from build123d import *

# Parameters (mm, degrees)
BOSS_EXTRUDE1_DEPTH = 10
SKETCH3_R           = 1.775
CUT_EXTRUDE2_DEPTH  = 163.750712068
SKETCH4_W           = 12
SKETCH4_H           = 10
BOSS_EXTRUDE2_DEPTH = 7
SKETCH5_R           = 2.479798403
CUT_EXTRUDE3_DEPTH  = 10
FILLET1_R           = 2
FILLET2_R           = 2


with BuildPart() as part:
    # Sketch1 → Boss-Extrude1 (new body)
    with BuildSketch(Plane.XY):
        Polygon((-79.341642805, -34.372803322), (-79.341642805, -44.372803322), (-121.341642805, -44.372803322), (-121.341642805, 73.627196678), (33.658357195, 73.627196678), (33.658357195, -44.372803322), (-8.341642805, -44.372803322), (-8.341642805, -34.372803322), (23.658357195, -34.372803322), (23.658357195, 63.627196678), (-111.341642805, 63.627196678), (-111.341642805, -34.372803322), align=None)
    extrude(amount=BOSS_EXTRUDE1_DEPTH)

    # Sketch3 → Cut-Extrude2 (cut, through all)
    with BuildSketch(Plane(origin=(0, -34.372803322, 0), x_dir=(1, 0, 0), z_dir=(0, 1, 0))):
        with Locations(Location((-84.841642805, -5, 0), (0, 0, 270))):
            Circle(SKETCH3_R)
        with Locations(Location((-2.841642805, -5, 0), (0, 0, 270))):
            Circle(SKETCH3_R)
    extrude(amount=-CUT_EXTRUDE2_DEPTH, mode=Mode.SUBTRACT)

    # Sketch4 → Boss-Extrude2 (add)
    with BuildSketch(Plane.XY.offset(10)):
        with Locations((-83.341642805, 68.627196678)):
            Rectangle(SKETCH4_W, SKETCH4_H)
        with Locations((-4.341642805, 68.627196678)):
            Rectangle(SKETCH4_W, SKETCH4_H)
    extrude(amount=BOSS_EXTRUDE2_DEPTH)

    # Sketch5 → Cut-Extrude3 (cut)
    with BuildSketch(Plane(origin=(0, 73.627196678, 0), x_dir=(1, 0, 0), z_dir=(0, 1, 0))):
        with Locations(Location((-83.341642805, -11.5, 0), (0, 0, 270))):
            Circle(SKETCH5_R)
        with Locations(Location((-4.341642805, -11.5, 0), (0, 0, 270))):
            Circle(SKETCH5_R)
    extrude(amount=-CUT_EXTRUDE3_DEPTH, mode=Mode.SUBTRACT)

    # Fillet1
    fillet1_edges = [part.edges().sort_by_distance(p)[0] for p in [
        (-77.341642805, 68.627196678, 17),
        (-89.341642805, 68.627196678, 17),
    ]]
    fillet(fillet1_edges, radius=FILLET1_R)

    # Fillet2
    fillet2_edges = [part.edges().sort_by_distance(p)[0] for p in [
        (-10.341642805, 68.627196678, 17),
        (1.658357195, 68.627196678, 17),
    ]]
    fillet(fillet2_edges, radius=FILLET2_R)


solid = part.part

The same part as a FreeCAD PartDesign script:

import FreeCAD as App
import Part
import Sketcher

V = App.Vector


def edges_at(feature, points):
    """Names of the edges that pass closest to the given points."""
    edges = feature.Shape.Edges
    near = lambda p: min(range(len(edges)), key=lambda i: edges[i].distToShape(Part.Vertex(*p))[0])
    return sorted({f"Edge{near(p) + 1}" for p in points})

doc = App.newDocument("Part")
params = doc.addObject("Spreadsheet::Sheet", "Params")
for row, (alias, value) in enumerate([
    ("sketch1_width", "32 mm"),
    ("sketch1_width2", "135 mm"),
    ("sketch1_width3", "42 mm"),
    ("sketch1_height", "10 mm"),
    ("sketch1_height2", "98 mm"),
    ("pad1_length", "10 mm"),
    ("sketch2_diameter", "3.55 mm"),
    ("sketch3_width", "12 mm"),
    ("sketch3_height", "10 mm"),
    ("pad2_length", "7 mm"),
    ("pocket2_length", "10 mm"),
    ("fillet_radius", "2 mm"),
    ("fillet2_radius", "2 mm"),
], start=1):
    params.set(f"A{row}", alias)
    params.set(f"B{row}", "=" + value)
    params.setAlias(f"B{row}", alias)

body = doc.addObject("PartDesign::Body", "Body")

# Sketch on XY plane
sketch1 = body.newObject("Sketcher::SketchObject", "Sketch")
sketch1.AttachmentSupport = (doc.getObject("XY_Plane"), [""])
sketch1.MapMode = "FlatFace"
sketch1.addGeometry([
    Part.LineSegment(V(-79, -44, 0), V(-79, -34, 0)),  # 0
    Part.LineSegment(V(-79, -34, 0), V(-111, -34, 0)),  # 1
    Part.LineSegment(V(-111, -34, 0), V(-111, 64, 0)),  # 2
    Part.LineSegment(V(-111, 64, 0), V(24, 64, 0)),  # 3
    Part.LineSegment(V(24, 64, 0), V(24, -34, 0)),  # 4
    Part.LineSegment(V(24, -34, 0), V(-8, -34, 0)),  # 5
    Part.LineSegment(V(-8, -34, 0), V(-8, -44, 0)),  # 6
    Part.LineSegment(V(-8, -44, 0), V(34, -44, 0)),  # 7
    Part.LineSegment(V(34, -44, 0), V(34, 74, 0)),  # 8
    Part.LineSegment(V(34, 74, 0), V(-121, 74, 0)),  # 9
    Part.LineSegment(V(-121, 74, 0), V(-121, -44, 0)),  # 10
    Part.LineSegment(V(-121, -44, 0), V(-79, -44, 0)),  # 11
], False)
sketch1.addConstraint([
    Sketcher.Constraint("Coincident", 0, 2, 1, 1),
    Sketcher.Constraint("Coincident", 1, 2, 2, 1),
    Sketcher.Constraint("Coincident", 2, 2, 3, 1),
    Sketcher.Constraint("Coincident", 3, 2, 4, 1),
    Sketcher.Constraint("Coincident", 4, 2, 5, 1),
    Sketcher.Constraint("Coincident", 5, 2, 6, 1),
    Sketcher.Constraint("Coincident", 6, 2, 7, 1),
    Sketcher.Constraint("Coincident", 7, 2, 8, 1),
    Sketcher.Constraint("Coincident", 8, 2, 9, 1),
    Sketcher.Constraint("Coincident", 9, 2, 10, 1),
    Sketcher.Constraint("Coincident", 10, 2, 11, 1),
    Sketcher.Constraint("Coincident", 11, 2, 0, 1),
    Sketcher.Constraint("Vertical", 0),
    Sketcher.Constraint("Horizontal", 1),
    Sketcher.Constraint("Vertical", 2),
    Sketcher.Constraint("Horizontal", 3),
    Sketcher.Constraint("Vertical", 4),
    Sketcher.Constraint("Horizontal", 5),
    Sketcher.Constraint("Vertical", 6),
    Sketcher.Constraint("Horizontal", 7),
    Sketcher.Constraint("Vertical", 8),
    Sketcher.Constraint("Horizontal", 9),
    Sketcher.Constraint("Vertical", 10),
    Sketcher.Constraint("Horizontal", 11),
    Sketcher.Constraint("Horizontal", 1, 2, 4, 2),
    Sketcher.Constraint("Horizontal", 7, 2, 10, 2),
    Sketcher.Constraint("Equal", 1, 5),
    Sketcher.Constraint("Equal", 7, 11),
    Sketcher.Constraint("DistanceX", 1, 2, 1, 1, 32.0),
    Sketcher.Constraint("DistanceX", 3, 1, 3, 2, 135.0),
    Sketcher.Constraint("DistanceX", 7, 1, 7, 2, 42.0),
    Sketcher.Constraint("DistanceY", 0, 1, 0, 2, 10.0),
    Sketcher.Constraint("DistanceY", 2, 1, 2, 2, 98.0),
    Sketcher.Constraint("DistanceY", 8, 1, 8, 2, 118.0),
    Sketcher.Constraint("DistanceX", 0, 2, -1, 1, 79.341643),
    Sketcher.Constraint("DistanceY", 0, 2, -1, 1, 34.372803),
])
sketch1.setExpression("Constraints[28]", "Params.sketch1_width")
sketch1.setExpression("Constraints[29]", "Params.sketch1_width2")
sketch1.setExpression("Constraints[30]", "Params.sketch1_width3")
sketch1.setExpression("Constraints[31]", "Params.sketch1_height")
sketch1.setExpression("Constraints[32]", "Params.sketch1_height2")
pad1 = body.newObject("PartDesign::Pad", "Pad")
pad1.Profile = sketch1
pad1.setExpression("Length", "Params.pad1_length")

# Sketch on XZ plane
sketch2 = body.newObject("Sketcher::SketchObject", "Sketch001")
sketch2.AttachmentSupport = (doc.getObject("XZ_Plane"), [""])
sketch2.MapMode = "FlatFace"
sketch2.AttachmentOffset = App.Placement(V(0, 0, 34.372803), App.Rotation())
sketch2.addGeometry([
    Part.Circle(V(-84.8, 5, 0), V(0, 0, 1), 1.8),
    Part.Circle(V(-2.8, 5, 0), V(0, 0, 1), 1.8),
], False)
sketch2.addConstraint([
    Sketcher.Constraint("Equal", 0, 1),
    Sketcher.Constraint("Horizontal", 0, 3, 1, 3),
    Sketcher.Constraint("Diameter", 0, 3.55),
    Sketcher.Constraint("DistanceY", -1, 1, 0, 3, 5.0),
    Sketcher.Constraint("DistanceX", 0, 3, 1, 3, 82.0),
    Sketcher.Constraint("DistanceX", 0, 3, -1, 1, 84.841643),
])
sketch2.setExpression("Constraints[2]", "Params.sketch2_diameter")
pocket1 = body.newObject("PartDesign::Pocket", "Pocket")
pocket1.Profile = sketch2
pocket1.Type = "ThroughAll"
pocket1.Reversed = True

# Sketch on XY plane
sketch3 = body.newObject("Sketcher::SketchObject", "Sketch002")
sketch3.AttachmentSupport = (doc.getObject("XY_Plane"), [""])
sketch3.MapMode = "FlatFace"
sketch3.AttachmentOffset = App.Placement(V(0, 0, 10), App.Rotation())
sketch3.addGeometry([
    Part.LineSegment(V(-89, 74, 0), V(-89, 64, 0)),  # 0
    Part.LineSegment(V(-89, 64, 0), V(-77, 64, 0)),  # 1
    Part.LineSegment(V(-77, 64, 0), V(-77, 74, 0)),  # 2
    Part.LineSegment(V(-77, 74, 0), V(-89, 74, 0)),  # 3
    Part.LineSegment(V(-10, 74, 0), V(-10, 64, 0)),  # 4
    Part.LineSegment(V(-10, 64, 0), V(2, 64, 0)),  # 5
    Part.LineSegment(V(2, 64, 0), V(2, 74, 0)),  # 6
    Part.LineSegment(V(2, 74, 0), V(-10, 74, 0)),  # 7
], False)
sketch3.addConstraint([
    Sketcher.Constraint("Coincident", 0, 2, 1, 1),
    Sketcher.Constraint("Coincident", 1, 2, 2, 1),
    Sketcher.Constraint("Coincident", 2, 2, 3, 1),
    Sketcher.Constraint("Coincident", 3, 2, 0, 1),
    Sketcher.Constraint("Coincident", 4, 2, 5, 1),
    Sketcher.Constraint("Coincident", 5, 2, 6, 1),
    Sketcher.Constraint("Coincident", 6, 2, 7, 1),
    Sketcher.Constraint("Coincident", 7, 2, 4, 1),
    Sketcher.Constraint("Vertical", 0),
    Sketcher.Constraint("Horizontal", 1),
    Sketcher.Constraint("Vertical", 2),
    Sketcher.Constraint("Horizontal", 3),
    Sketcher.Constraint("Vertical", 4),
    Sketcher.Constraint("Horizontal", 5),
    Sketcher.Constraint("Vertical", 6),
    Sketcher.Constraint("Horizontal", 7),
    Sketcher.Constraint("Horizontal", 1, 2, 4, 2),
    Sketcher.Constraint("Horizontal", 3, 2, 6, 2),
    Sketcher.Constraint("Equal", 3, 5),
    Sketcher.Constraint("DistanceX", 1, 1, 1, 2, 12.0),
    Sketcher.Constraint("DistanceY", 0, 2, 0, 1, 10.0),
    Sketcher.Constraint("DistanceX", 1, 2, 4, 2, 67.0),
    Sketcher.Constraint("DistanceX", 0, 2, -1, 1, 89.341643),
    Sketcher.Constraint("DistanceY", -1, 1, 0, 2, 63.627197),
])
sketch3.setExpression("Constraints[19]", "Params.sketch3_width")
sketch3.setExpression("Constraints[20]", "Params.sketch3_height")
pad2 = body.newObject("PartDesign::Pad", "Pad001")
pad2.Profile = sketch3
pad2.setExpression("Length", "Params.pad2_length")

# Sketch on XZ plane
sketch4 = body.newObject("Sketcher::SketchObject", "Sketch003")
sketch4.AttachmentSupport = (doc.getObject("XZ_Plane"), [""])
sketch4.MapMode = "FlatFace"
sketch4.AttachmentOffset = App.Placement(V(0, 0, -73.627197), App.Rotation())
sketch4.addGeometry([
    Part.Circle(V(-83.3, 11.5, 0), V(0, 0, 1), 2.5),
    Part.Circle(V(-4.3, 11.5, 0), V(0, 0, 1), 2.5),
], False)
sketch4.addConstraint([
    Sketcher.Constraint("Equal", 0, 1),
    Sketcher.Constraint("Horizontal", 0, 3, 1, 3),
    Sketcher.Constraint("DistanceX", 0, 3, 1, 3, 79.0),
    Sketcher.Constraint("DistanceY", -1, 1, 0, 3, 11.5),
    Sketcher.Constraint("Diameter", 0, 4.959597),
    Sketcher.Constraint("DistanceX", 0, 3, -1, 1, 83.341643),
])
pocket2 = body.newObject("PartDesign::Pocket", "Pocket001")
pocket2.Profile = sketch4
pocket2.setExpression("Length", "Params.pocket2_length")
pocket2.Reversed = True
doc.recompute()

fillet = body.newObject("PartDesign::Fillet", "Fillet")
fillet.Base = (pocket2, edges_at(pocket2, [(-77.342, 68.627, 17), (-89.342, 68.627, 17)]))
fillet.setExpression("Radius", "Params.fillet_radius")
doc.recompute()

fillet2 = body.newObject("PartDesign::Fillet", "Fillet001")
fillet2.Base = (fillet, edges_at(fillet, [(-10.342, 68.627, 17), (1.658, 68.627, 17)]))
fillet2.setExpression("Radius", "Params.fillet2_radius")

doc.recompute()
